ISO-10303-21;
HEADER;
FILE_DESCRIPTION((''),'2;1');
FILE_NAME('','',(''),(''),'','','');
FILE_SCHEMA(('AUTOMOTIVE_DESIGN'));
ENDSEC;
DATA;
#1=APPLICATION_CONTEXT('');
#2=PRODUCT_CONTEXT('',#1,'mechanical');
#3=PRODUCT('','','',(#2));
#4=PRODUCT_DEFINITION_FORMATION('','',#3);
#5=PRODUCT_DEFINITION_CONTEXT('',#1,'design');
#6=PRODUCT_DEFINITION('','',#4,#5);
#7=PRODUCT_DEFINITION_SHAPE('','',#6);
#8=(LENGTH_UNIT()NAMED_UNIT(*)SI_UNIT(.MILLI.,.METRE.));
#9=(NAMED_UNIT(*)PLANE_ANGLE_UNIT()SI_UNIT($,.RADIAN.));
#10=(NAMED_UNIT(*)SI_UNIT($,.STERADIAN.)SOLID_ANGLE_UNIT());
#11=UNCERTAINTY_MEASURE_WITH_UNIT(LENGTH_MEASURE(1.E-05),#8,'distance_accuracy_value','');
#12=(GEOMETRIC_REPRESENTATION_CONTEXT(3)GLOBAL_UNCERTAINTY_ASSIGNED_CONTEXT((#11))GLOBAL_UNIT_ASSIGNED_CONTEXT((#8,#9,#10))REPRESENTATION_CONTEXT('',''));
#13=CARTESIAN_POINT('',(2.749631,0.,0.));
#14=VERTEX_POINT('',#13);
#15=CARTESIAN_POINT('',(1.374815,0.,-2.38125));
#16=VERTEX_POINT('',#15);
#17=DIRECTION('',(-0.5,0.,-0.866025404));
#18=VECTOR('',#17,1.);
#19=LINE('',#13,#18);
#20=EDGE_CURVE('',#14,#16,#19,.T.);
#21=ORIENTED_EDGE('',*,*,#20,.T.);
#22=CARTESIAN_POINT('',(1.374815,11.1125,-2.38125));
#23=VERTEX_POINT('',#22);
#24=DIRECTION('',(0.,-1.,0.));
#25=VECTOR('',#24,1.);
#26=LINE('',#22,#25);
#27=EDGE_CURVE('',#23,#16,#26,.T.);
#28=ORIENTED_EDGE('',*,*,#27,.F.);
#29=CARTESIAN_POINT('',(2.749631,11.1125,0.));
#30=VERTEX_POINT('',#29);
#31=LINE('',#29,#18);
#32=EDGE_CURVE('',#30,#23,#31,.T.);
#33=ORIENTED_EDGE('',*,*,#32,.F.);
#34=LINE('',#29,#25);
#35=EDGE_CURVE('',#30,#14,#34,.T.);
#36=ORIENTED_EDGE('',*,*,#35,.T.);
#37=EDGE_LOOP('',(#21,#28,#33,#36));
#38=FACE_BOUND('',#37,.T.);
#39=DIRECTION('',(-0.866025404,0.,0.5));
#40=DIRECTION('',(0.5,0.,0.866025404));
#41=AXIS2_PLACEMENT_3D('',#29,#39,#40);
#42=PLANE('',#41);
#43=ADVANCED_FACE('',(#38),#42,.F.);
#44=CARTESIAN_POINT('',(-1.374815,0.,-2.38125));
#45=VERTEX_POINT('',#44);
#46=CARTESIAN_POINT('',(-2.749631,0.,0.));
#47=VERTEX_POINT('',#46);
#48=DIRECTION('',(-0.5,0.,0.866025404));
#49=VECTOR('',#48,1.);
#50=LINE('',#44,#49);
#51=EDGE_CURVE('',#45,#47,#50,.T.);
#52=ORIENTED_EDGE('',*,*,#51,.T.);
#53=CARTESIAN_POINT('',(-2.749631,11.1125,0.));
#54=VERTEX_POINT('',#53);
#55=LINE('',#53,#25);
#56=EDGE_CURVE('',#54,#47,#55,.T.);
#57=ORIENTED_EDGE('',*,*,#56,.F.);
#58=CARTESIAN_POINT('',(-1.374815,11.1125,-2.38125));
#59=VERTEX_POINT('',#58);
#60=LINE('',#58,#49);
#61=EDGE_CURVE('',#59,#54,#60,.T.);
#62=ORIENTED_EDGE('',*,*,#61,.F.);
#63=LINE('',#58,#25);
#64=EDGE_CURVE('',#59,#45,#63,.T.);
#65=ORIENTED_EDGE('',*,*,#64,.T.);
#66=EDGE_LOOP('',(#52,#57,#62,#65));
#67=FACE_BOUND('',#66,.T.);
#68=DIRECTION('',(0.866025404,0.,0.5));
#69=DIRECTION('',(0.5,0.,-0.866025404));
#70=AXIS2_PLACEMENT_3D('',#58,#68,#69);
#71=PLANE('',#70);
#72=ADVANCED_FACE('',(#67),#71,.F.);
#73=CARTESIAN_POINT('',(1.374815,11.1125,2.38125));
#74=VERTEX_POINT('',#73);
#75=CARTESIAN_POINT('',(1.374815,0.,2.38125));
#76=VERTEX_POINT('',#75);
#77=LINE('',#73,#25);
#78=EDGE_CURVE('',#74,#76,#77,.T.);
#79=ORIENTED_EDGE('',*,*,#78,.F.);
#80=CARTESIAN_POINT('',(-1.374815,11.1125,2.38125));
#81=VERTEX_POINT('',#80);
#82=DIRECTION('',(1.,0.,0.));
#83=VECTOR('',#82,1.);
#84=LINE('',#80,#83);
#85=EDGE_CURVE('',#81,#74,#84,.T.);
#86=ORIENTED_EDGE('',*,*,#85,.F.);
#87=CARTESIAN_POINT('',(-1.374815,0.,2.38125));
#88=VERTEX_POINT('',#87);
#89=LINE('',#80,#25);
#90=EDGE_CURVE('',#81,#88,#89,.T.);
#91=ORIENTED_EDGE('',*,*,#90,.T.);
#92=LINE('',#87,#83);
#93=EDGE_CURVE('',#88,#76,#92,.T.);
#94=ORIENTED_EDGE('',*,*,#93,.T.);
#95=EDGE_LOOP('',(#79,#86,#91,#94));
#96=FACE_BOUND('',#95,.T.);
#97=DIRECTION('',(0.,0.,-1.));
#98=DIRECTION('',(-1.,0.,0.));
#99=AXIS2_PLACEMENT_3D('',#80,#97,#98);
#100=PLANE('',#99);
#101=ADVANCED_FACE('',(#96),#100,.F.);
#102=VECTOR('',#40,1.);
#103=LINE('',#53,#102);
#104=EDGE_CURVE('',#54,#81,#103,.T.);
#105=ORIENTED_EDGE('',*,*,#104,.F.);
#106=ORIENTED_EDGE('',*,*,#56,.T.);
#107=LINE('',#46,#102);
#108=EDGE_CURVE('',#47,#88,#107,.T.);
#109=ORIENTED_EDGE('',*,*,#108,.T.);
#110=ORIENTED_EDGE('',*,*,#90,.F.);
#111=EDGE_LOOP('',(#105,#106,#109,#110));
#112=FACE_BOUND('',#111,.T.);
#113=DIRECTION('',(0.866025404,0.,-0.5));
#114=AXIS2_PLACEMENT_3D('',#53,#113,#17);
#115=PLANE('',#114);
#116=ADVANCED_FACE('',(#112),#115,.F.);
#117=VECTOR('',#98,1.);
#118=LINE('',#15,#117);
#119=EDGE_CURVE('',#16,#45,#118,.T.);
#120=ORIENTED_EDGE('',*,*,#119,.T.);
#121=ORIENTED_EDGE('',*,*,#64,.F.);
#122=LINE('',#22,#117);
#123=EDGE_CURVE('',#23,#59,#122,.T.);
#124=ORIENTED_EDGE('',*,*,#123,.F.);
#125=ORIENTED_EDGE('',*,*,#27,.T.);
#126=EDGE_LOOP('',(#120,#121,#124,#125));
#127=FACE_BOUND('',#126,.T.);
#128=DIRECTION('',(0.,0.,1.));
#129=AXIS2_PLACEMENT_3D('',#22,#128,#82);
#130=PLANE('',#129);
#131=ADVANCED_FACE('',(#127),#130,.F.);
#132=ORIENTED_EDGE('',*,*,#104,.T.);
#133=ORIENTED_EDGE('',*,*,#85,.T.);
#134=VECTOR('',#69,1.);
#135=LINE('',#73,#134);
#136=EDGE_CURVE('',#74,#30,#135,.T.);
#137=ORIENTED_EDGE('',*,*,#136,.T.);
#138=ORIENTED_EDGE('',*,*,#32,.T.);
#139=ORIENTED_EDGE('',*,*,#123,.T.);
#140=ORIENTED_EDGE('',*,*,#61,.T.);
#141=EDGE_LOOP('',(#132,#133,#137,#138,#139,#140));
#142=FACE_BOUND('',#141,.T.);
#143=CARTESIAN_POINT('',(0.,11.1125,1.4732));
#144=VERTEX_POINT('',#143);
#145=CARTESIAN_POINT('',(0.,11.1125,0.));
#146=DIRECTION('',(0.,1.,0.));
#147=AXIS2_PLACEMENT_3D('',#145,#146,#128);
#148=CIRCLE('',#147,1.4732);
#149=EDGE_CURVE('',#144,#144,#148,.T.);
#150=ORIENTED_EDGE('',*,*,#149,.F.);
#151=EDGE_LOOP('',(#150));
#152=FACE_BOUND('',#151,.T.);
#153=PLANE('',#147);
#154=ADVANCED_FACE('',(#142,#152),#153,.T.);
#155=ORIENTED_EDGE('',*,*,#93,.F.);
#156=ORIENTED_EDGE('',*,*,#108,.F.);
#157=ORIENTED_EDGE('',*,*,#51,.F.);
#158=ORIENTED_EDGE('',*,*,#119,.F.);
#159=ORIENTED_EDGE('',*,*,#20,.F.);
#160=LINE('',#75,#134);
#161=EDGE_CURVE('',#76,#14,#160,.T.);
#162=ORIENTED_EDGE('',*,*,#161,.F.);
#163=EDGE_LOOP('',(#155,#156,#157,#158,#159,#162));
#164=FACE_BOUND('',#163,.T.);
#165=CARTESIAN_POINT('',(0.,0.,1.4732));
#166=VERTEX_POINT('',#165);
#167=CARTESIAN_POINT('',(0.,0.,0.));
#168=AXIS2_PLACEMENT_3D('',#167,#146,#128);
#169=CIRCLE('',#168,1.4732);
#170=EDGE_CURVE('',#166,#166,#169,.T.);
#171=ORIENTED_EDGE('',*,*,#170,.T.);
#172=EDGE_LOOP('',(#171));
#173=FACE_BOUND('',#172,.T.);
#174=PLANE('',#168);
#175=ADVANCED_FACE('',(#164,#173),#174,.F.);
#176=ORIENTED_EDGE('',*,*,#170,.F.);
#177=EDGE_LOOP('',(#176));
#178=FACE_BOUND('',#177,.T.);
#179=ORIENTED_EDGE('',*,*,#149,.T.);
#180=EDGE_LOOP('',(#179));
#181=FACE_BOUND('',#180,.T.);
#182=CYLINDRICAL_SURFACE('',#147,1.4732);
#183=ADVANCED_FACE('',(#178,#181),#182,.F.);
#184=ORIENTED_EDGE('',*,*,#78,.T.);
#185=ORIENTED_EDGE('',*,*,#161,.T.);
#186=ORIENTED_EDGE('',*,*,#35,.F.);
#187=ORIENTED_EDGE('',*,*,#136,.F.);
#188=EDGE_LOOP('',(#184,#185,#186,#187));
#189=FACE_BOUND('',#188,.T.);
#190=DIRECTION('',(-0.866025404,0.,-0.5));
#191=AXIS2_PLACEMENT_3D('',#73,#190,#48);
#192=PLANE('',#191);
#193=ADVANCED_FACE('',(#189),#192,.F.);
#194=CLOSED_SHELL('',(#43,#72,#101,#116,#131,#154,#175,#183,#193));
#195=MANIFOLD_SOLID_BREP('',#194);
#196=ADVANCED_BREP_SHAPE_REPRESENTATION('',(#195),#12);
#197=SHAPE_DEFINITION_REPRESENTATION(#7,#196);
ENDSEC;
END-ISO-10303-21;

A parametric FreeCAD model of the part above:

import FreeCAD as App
import Part
import Sketcher

V = App.Vector
Q = App.Units.Quantity

doc = App.newDocument("Part")
params = doc.addObject("Spreadsheet::Sheet", "Params")
for row, (alias, value) in enumerate([
    ("pad1_length", "0.4375 in"),
    ("sketch2_diameter", "0.116 in"),
    ("hole_diameter", "0.116 in"),
    ("hole_depth", "1 in"),
], start=1):
    params.set(f"A{row}", alias)
    params.set(f"B{row}", "=" + value)
    params.setAlias(f"B{row}", alias)

body = doc.addObject("PartDesign::Body", "Body")

# Sketch on XZ plane
sketch1 = body.newObject("Sketcher::SketchObject", "Sketch")
sketch1.AttachmentSupport = (doc.getObject("XZ_Plane"), [""])
sketch1.MapMode = "FlatFace"
sketch1.addGeometry([
    Part.LineSegment(V(2.7, 0, 0), V(1.4, -2.4, 0)),  # 0
    Part.LineSegment(V(1.4, -2.4, 0), V(-1.4, -2.4, 0)),  # 1
    Part.LineSegment(V(-1.4, -2.4, 0), V(-2.7, 0, 0)),  # 2
    Part.LineSegment(V(-2.7, 0, 0), V(-1.4, 2.4, 0)),  # 3
    Part.LineSegment(V(-1.4, 2.4, 0), V(1.4, 2.4, 0)),  # 4
    Part.LineSegment(V(1.4, 2.4, 0), V(2.7, 0, 0)),  # 5
], False)
sketch1.addConstraint([
    Sketcher.Constraint("Coincident", 0, 2, 1, 1),
    Sketcher.Constraint("Coincident", 1, 2, 2, 1),
    Sketcher.Constraint("Coincident", 2, 2, 3, 1),
    Sketcher.Constraint("Coincident", 3, 2, 4, 1),
    Sketcher.Constraint("Coincident", 4, 2, 5, 1),
    Sketcher.Constraint("Coincident", 5, 2, 0, 1),
    Sketcher.Constraint("Horizontal", 1),
    Sketcher.Constraint("Horizontal", 4),
    Sketcher.Constraint("Symmetric", 0, 2, 3, 2, -1, 1),
    Sketcher.Constraint("Symmetric", 2, 2, 5, 2, -1, 1),
    Sketcher.Constraint("PointOnObject", 2, 2, -1),
    Sketcher.Constraint("Parallel", 2, 5),
    Sketcher.Constraint("Vertical", 1, 2, 3, 2),
    Sketcher.Constraint("Angle", 0, Q("-120 deg")),
    Sketcher.Constraint("DistanceY", 0, 2, -1, 1, Q("0.09375 in")),
    Sketcher.Constraint("DistanceX", 1, 2, 1, 1, 2.749631),
])
pad1 = body.newObject("PartDesign::Pad", "Pad")
pad1.Profile = sketch1
pad1.setExpression("Length", "Params.pad1_length")
pad1.Reversed = True

# Sketch on XZ plane
sketch2 = body.newObject("Sketcher::SketchObject", "Sketch001")
sketch2.AttachmentSupport = (doc.getObject("XZ_Plane"), [""])
sketch2.MapMode = "FlatFace"
sketch2.AttachmentOffset = App.Placement(V(0, 0, -0.4375 * 25.4), App.Rotation())
sketch2.addGeometry(Part.Circle(V(0, 0, 0), V(0, 0, 1), 1.5), False)
sketch2.addConstraint([
    Sketcher.Constraint("Coincident", 0, 3, -1, 1),
    Sketcher.Constraint("Diameter", 0, Q("0.116 in")),
])
sketch2.setExpression("Constraints[1]", "Params.sketch2_diameter")
doc.recompute()
hole = body.newObject("PartDesign::Hole", "Hole")
hole.Profile = sketch2
hole.ThreadType = "None"
hole.setExpression("Diameter", "Params.hole_diameter")
hole.DepthType = "Dimension"
hole.setExpression("Depth", "Params.hole_depth")
hole.DrillPoint = "Angled"
hole.DrillPointAngle = 118
hole.Reversed = True

doc.recompute()
